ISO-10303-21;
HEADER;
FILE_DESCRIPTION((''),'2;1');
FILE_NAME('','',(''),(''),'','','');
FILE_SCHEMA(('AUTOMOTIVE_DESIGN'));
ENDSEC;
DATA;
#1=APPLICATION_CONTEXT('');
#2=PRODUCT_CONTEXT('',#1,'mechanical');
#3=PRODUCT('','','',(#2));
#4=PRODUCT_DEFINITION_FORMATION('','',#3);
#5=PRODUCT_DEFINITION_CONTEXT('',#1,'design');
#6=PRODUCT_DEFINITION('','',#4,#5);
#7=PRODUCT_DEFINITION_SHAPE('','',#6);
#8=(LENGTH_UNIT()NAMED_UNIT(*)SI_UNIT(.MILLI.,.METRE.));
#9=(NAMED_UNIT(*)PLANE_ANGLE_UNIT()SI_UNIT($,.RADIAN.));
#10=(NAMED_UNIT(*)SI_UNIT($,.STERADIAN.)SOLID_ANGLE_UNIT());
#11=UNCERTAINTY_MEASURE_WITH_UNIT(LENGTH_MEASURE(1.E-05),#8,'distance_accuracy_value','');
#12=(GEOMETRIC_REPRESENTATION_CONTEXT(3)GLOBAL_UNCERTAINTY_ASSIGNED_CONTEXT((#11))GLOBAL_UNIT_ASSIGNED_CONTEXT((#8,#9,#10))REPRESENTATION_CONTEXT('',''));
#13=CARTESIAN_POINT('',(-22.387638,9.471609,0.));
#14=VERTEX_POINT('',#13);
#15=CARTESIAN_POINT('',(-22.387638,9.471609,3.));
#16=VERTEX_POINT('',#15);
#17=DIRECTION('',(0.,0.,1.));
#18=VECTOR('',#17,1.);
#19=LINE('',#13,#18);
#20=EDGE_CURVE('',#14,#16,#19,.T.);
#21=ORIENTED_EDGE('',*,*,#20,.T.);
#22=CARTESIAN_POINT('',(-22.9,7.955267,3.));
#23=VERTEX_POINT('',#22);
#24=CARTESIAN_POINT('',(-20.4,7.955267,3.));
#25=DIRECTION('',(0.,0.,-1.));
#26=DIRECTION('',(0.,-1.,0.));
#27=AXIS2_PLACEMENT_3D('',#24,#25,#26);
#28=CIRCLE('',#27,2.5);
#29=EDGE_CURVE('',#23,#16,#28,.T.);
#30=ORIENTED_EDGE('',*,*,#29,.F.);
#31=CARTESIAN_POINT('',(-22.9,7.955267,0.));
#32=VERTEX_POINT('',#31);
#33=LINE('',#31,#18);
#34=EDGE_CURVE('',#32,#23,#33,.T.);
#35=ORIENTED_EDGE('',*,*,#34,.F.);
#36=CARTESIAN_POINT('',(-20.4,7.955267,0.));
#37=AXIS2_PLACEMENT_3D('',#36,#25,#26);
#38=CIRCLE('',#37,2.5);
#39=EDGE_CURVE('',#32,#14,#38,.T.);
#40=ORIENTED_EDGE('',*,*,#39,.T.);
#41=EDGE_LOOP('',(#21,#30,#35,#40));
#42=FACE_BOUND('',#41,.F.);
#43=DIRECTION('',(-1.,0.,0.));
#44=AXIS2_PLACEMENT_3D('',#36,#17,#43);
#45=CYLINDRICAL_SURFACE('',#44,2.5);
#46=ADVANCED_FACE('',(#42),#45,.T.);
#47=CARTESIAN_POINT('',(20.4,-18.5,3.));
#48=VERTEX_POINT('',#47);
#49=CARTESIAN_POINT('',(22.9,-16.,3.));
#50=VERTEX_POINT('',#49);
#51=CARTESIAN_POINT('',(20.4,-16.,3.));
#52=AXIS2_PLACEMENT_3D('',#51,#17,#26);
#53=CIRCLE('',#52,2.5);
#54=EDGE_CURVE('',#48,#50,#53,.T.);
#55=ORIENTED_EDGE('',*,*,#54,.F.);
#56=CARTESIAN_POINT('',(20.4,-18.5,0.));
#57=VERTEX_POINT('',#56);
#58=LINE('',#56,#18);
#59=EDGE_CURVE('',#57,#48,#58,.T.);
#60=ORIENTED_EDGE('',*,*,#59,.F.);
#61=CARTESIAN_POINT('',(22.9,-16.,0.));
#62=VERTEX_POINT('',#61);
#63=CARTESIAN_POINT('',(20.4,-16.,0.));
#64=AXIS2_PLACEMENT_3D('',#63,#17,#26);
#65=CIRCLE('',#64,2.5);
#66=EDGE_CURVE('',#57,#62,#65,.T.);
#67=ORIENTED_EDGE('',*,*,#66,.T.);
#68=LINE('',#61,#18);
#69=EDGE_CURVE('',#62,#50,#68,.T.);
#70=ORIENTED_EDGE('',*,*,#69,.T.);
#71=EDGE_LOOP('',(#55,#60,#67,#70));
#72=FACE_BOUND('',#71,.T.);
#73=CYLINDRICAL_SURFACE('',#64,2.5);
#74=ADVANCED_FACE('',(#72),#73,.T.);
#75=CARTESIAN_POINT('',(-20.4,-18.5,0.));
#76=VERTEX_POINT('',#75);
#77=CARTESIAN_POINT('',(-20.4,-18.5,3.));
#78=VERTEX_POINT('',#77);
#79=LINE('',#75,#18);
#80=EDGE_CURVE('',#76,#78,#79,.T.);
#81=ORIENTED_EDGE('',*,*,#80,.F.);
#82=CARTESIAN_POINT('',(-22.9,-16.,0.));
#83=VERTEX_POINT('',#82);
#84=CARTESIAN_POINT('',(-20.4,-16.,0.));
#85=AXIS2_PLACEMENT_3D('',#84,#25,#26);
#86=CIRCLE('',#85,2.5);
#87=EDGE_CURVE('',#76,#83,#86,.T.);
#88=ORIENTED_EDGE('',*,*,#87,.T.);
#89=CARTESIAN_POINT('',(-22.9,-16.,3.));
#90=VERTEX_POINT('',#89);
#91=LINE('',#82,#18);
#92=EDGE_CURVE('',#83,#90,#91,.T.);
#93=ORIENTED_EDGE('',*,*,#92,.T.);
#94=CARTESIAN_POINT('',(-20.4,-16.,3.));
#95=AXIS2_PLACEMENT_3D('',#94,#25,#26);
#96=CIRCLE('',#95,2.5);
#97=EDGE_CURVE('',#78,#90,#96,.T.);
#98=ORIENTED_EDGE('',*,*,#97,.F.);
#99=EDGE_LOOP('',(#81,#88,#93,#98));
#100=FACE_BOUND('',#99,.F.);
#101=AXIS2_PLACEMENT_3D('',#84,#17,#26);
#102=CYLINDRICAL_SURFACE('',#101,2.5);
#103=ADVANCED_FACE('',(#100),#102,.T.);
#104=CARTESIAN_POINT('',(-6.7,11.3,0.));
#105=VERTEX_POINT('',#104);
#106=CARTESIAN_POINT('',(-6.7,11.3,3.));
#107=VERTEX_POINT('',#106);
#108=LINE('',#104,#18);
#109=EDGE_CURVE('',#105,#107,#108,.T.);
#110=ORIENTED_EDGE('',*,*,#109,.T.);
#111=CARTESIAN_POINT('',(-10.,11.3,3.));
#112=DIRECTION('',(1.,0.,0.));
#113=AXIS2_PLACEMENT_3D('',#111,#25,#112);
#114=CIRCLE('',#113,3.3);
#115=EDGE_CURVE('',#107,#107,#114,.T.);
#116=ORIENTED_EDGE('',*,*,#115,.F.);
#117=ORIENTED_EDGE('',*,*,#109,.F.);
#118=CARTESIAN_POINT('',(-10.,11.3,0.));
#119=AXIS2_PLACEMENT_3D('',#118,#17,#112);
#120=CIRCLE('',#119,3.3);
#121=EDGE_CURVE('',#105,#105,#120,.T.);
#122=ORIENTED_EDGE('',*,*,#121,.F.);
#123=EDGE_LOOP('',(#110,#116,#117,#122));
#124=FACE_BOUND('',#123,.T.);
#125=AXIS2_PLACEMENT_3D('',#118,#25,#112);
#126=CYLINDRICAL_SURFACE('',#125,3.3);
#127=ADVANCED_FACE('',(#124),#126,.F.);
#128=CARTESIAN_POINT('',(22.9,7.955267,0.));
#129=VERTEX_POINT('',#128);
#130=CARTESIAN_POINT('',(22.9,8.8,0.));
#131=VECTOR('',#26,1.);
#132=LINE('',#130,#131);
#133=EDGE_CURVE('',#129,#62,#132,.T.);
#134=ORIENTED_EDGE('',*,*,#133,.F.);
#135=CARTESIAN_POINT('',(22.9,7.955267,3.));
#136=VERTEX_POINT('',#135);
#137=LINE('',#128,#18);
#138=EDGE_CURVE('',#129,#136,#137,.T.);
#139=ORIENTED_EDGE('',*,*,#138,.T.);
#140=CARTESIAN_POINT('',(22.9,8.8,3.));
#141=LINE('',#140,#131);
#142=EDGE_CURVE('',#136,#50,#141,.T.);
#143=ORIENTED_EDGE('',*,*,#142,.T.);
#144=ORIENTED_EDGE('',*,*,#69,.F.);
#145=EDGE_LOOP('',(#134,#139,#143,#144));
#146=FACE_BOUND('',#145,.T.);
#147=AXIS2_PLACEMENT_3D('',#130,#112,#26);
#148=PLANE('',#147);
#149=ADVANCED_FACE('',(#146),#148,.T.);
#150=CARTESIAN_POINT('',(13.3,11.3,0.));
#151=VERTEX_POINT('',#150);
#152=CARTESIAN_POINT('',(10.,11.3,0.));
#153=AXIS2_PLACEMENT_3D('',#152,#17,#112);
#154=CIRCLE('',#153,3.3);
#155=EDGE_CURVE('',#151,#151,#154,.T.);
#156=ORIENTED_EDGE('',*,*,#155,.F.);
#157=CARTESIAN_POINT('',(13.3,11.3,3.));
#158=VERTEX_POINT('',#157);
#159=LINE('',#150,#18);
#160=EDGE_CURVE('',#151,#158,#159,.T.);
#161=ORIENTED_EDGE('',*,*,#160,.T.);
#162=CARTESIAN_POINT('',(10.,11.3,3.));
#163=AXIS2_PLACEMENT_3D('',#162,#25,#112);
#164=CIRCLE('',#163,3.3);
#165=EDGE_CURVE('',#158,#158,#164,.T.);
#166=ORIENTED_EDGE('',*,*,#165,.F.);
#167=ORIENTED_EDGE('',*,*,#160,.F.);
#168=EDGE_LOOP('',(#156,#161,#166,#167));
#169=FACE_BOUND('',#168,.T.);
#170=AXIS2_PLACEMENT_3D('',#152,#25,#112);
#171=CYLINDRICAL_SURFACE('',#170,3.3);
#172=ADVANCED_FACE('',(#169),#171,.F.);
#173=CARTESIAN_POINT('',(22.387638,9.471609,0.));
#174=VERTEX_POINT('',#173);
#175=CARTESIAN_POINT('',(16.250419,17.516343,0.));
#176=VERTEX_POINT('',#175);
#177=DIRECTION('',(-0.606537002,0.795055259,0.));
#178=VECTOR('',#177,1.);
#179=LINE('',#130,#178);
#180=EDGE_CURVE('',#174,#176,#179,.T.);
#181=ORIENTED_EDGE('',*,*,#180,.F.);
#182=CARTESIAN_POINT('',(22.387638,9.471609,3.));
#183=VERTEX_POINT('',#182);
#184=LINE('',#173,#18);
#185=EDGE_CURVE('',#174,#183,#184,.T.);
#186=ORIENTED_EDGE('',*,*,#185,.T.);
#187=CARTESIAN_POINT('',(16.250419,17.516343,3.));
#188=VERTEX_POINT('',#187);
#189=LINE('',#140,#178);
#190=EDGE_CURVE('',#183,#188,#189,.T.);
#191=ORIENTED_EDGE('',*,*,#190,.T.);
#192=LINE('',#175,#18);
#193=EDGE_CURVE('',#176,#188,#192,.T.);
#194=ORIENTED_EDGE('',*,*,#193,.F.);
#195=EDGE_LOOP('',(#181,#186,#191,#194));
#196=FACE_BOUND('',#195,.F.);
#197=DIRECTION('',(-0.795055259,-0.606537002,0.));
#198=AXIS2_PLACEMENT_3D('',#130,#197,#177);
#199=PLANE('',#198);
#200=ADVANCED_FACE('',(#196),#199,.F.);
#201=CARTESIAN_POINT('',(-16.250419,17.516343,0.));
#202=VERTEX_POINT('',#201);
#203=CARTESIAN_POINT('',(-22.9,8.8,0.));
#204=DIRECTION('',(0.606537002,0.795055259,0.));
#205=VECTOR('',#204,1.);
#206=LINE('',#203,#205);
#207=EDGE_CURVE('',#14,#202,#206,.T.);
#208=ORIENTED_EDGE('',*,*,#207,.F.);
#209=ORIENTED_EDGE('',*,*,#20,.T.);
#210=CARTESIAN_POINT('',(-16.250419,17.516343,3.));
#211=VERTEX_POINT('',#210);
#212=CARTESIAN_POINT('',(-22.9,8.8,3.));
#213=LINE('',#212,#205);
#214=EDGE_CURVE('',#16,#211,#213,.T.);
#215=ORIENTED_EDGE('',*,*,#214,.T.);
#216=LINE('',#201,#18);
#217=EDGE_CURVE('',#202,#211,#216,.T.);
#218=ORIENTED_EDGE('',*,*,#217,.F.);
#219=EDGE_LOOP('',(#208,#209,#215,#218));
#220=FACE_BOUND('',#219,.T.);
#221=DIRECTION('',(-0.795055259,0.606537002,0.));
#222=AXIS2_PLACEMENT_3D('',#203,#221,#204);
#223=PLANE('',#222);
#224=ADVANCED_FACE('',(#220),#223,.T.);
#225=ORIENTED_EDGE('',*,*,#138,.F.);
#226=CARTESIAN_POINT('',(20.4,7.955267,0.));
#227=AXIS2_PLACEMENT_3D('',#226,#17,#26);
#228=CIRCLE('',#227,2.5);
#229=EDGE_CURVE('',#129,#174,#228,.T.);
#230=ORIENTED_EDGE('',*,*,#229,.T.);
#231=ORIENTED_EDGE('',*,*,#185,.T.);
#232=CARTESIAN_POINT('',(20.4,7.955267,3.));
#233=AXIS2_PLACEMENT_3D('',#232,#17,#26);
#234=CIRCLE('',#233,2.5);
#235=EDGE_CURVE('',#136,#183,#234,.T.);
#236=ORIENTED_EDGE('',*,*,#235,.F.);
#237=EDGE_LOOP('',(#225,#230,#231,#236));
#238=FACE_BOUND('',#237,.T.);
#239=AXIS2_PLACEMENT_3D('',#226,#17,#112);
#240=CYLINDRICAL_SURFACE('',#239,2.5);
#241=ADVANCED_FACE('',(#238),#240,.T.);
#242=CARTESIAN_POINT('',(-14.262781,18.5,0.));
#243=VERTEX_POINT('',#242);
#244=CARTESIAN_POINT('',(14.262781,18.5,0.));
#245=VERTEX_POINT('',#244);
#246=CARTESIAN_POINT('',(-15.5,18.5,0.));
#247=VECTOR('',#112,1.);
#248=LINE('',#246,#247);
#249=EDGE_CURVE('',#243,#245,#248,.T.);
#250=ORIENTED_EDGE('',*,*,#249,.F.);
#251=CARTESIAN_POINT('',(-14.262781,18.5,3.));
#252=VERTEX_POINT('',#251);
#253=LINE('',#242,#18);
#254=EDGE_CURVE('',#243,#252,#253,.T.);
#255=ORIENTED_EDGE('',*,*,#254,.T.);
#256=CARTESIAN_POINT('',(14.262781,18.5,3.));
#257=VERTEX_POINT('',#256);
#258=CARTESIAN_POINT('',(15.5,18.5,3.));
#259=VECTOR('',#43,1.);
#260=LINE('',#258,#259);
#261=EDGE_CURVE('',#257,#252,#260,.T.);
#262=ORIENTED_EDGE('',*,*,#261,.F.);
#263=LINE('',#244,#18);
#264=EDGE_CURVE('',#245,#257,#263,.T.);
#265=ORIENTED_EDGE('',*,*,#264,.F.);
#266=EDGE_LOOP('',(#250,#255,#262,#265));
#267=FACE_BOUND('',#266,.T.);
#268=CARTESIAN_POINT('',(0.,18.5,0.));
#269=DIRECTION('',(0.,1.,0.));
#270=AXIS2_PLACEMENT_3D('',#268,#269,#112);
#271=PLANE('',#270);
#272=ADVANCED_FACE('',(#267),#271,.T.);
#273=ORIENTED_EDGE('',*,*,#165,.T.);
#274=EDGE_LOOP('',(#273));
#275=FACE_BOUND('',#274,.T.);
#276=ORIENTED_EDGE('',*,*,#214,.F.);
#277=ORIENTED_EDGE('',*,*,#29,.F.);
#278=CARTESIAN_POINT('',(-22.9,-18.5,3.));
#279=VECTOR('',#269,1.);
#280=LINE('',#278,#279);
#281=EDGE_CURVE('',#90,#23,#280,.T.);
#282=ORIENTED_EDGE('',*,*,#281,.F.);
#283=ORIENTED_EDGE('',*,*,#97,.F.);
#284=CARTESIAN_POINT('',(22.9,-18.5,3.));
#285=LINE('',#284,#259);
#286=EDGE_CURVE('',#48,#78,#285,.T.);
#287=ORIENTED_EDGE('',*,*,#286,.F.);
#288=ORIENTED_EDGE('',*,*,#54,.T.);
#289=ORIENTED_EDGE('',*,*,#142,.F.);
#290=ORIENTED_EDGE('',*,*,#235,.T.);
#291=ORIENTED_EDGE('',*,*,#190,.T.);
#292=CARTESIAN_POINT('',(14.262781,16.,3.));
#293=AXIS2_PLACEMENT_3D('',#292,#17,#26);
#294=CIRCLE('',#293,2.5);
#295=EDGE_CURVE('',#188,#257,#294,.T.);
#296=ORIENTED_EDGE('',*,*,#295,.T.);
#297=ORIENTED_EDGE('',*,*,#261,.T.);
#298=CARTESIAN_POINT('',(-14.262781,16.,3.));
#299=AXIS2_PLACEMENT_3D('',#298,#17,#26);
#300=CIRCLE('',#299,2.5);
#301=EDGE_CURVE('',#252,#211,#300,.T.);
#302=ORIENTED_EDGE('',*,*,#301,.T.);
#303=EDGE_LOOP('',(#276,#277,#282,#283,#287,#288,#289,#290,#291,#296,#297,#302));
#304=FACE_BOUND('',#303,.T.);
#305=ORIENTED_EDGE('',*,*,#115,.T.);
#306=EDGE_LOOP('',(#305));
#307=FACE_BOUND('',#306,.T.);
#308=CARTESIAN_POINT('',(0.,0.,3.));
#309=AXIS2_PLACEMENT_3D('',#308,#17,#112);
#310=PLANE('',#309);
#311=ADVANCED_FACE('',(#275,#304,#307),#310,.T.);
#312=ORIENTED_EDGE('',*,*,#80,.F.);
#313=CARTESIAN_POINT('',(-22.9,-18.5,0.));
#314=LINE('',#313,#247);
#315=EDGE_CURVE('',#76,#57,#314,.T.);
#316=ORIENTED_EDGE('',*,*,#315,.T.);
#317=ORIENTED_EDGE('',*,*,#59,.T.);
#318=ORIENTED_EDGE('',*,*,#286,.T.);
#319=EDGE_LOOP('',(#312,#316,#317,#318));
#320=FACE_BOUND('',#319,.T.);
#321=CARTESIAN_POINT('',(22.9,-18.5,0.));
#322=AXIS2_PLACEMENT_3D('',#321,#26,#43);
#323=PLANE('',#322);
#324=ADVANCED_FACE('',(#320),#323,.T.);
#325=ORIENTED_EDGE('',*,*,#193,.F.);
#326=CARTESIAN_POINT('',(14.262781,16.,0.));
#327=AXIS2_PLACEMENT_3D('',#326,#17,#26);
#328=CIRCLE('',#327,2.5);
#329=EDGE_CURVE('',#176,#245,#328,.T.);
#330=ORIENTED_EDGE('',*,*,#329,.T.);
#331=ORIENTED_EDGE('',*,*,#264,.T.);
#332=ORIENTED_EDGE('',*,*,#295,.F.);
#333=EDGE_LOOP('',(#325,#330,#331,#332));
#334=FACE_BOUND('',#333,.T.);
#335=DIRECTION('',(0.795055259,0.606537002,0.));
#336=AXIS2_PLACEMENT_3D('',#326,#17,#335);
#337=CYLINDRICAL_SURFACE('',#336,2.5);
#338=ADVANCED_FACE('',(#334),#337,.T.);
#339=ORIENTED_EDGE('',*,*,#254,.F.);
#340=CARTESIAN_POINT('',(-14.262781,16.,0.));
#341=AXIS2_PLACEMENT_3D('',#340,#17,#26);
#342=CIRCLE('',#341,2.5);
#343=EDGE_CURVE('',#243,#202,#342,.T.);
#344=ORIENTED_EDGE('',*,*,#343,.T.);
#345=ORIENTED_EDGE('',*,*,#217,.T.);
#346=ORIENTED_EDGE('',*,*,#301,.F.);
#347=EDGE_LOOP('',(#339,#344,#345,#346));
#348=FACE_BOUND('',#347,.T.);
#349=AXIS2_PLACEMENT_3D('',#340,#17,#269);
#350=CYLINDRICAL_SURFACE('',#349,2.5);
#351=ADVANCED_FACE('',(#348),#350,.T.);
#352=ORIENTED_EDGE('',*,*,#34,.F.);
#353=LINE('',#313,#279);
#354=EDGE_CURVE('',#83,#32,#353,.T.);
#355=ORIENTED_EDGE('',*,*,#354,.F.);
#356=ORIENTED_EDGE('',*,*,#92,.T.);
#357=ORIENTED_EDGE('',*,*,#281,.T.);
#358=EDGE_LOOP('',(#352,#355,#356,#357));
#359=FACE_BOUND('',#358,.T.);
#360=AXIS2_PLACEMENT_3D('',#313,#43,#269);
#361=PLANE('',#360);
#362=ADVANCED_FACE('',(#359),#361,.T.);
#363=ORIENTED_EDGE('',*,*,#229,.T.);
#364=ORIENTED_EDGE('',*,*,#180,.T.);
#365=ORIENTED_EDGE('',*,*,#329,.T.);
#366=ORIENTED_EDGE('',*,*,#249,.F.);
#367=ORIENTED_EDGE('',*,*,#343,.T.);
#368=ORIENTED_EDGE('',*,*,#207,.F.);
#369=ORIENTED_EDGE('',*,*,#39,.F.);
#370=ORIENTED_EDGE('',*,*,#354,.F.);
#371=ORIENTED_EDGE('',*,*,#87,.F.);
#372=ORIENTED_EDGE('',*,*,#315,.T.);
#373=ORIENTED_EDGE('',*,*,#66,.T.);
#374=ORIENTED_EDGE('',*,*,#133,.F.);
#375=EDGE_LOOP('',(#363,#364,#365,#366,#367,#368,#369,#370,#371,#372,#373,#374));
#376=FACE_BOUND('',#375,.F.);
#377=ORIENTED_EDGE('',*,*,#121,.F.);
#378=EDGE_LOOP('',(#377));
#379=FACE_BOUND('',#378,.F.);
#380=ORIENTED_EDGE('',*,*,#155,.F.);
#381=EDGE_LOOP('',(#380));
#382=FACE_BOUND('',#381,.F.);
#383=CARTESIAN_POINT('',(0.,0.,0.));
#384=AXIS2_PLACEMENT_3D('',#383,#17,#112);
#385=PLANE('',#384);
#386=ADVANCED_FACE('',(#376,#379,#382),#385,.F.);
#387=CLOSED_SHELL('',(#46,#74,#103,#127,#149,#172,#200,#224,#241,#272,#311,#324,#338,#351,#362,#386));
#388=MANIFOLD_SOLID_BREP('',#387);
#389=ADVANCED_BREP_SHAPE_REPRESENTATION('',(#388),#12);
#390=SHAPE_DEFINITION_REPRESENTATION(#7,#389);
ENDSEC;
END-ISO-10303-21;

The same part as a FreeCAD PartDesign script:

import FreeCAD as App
import Part
import Sketcher


def edges_at(feature, points):
    """Names of the edges that pass closest to the given points."""
    edges = feature.Shape.Edges
    near = lambda p: min(range(len(edges)), key=lambda i: edges[i].distToShape(Part.Vertex(*p))[0])
    return sorted({f"Edge{near(p) + 1}" for p in points})

doc = App.newDocument("Part")
body = doc.addObject("PartDesign::Body", "Body")

# Sketch on XY plane
sketch1 = body.newObject("Sketcher::SketchObject", "Sketch")
sketch1.AttachmentSupport = (doc.getObject("XY_Plane"), [""])
sketch1.MapMode = "FlatFace"
sketch1.addGeometry([
    Part.LineSegment(App.Vector(22.9, -18.5, 0), App.Vector(22.9, 8.8, 0)),  # 0
    Part.LineSegment(App.Vector(22.9, 8.8, 0), App.Vector(15.5, 18.5, 0)),  # 1
    Part.LineSegment(App.Vector(15.5, 18.5, 0), App.Vector(-15.5, 18.5, 0)),  # 2
    Part.LineSegment(App.Vector(-15.5, 18.5, 0), App.Vector(-22.9, 8.8, 0)),  # 3
    Part.LineSegment(App.Vector(-22.9, 8.8, 0), App.Vector(-22.9, -18.5, 0)),  # 4
    Part.LineSegment(App.Vector(-22.9, -18.5, 0), App.Vector(22.9, -18.5, 0)),  # 5
    Part.Circle(App.Vector(10, 11.3, 0), App.Vector(0, 0, 1), 3.3),  # 6
    Part.Circle(App.Vector(-10, 11.3, 0), App.Vector(0, 0, 1), 3.3),  # 7
], False)
sketch1.addConstraint([
    Sketcher.Constraint("Coincident", 0, 2, 1, 1),
    Sketcher.Constraint("Coincident", 1, 2, 2, 1),
    Sketcher.Constraint("Coincident", 2, 2, 3, 1),
    Sketcher.Constraint("Coincident", 3, 2, 4, 1),
    Sketcher.Constraint("Coincident", 4, 2, 5, 1),
    Sketcher.Constraint("Coincident", 5, 2, 0, 1),
    Sketcher.Constraint("Vertical", 0),
    Sketcher.Constraint("Horizontal", 2),
    Sketcher.Constraint("Vertical", 4),
    Sketcher.Constraint("Horizontal", 5),
    Sketcher.Constraint("Equal", 6, 7),
    Sketcher.Constraint("Symmetric", 6, 3, 7, 3, -2),
    Sketcher.Constraint("Symmetric", 0, 2, 3, 2, -2),
    Sketcher.Constraint("Equal", 1, 3),
    Sketcher.Constraint("Diameter", 6, 6.6),
    Sketcher.Constraint("DistanceX", 5, 1, 5, 2, 45.8),
    Sketcher.Constraint("DistanceY", 0, 1, 0, 2, 27.3),
    Sketcher.Constraint("DistanceY", 4, 2, 2, 2, 37.0),
    Sketcher.Constraint("DistanceX", 2, 2, 2, 1, 31.0),
    Sketcher.Constraint("DistanceX", -1, 1, 6, 3, 10.0),
    Sketcher.Constraint("DistanceY", -1, 1, 6, 3, 11.3),
    Sketcher.Constraint("DistanceY", -1, 1, 0, 2, 8.8),
])
pad1 = body.newObject("PartDesign::Pad", "Pad")
pad1.Profile = sketch1
pad1.Length = 3
doc.recompute()

fillet = body.newObject("PartDesign::Fillet", "Fillet")
fillet.Base = (pad1, edges_at(pad1, [
    (15.5, 18.5, 1.5),
    (22.9, 8.8, 1.5),
    (22.9, -18.5, 1.5),
    (-22.9, -18.5, 1.5),
    (-22.9, 8.8, 1.5),
    (-15.5, 18.5, 1.5),
]))
fillet.Radius = 2.5

doc.recompute()
